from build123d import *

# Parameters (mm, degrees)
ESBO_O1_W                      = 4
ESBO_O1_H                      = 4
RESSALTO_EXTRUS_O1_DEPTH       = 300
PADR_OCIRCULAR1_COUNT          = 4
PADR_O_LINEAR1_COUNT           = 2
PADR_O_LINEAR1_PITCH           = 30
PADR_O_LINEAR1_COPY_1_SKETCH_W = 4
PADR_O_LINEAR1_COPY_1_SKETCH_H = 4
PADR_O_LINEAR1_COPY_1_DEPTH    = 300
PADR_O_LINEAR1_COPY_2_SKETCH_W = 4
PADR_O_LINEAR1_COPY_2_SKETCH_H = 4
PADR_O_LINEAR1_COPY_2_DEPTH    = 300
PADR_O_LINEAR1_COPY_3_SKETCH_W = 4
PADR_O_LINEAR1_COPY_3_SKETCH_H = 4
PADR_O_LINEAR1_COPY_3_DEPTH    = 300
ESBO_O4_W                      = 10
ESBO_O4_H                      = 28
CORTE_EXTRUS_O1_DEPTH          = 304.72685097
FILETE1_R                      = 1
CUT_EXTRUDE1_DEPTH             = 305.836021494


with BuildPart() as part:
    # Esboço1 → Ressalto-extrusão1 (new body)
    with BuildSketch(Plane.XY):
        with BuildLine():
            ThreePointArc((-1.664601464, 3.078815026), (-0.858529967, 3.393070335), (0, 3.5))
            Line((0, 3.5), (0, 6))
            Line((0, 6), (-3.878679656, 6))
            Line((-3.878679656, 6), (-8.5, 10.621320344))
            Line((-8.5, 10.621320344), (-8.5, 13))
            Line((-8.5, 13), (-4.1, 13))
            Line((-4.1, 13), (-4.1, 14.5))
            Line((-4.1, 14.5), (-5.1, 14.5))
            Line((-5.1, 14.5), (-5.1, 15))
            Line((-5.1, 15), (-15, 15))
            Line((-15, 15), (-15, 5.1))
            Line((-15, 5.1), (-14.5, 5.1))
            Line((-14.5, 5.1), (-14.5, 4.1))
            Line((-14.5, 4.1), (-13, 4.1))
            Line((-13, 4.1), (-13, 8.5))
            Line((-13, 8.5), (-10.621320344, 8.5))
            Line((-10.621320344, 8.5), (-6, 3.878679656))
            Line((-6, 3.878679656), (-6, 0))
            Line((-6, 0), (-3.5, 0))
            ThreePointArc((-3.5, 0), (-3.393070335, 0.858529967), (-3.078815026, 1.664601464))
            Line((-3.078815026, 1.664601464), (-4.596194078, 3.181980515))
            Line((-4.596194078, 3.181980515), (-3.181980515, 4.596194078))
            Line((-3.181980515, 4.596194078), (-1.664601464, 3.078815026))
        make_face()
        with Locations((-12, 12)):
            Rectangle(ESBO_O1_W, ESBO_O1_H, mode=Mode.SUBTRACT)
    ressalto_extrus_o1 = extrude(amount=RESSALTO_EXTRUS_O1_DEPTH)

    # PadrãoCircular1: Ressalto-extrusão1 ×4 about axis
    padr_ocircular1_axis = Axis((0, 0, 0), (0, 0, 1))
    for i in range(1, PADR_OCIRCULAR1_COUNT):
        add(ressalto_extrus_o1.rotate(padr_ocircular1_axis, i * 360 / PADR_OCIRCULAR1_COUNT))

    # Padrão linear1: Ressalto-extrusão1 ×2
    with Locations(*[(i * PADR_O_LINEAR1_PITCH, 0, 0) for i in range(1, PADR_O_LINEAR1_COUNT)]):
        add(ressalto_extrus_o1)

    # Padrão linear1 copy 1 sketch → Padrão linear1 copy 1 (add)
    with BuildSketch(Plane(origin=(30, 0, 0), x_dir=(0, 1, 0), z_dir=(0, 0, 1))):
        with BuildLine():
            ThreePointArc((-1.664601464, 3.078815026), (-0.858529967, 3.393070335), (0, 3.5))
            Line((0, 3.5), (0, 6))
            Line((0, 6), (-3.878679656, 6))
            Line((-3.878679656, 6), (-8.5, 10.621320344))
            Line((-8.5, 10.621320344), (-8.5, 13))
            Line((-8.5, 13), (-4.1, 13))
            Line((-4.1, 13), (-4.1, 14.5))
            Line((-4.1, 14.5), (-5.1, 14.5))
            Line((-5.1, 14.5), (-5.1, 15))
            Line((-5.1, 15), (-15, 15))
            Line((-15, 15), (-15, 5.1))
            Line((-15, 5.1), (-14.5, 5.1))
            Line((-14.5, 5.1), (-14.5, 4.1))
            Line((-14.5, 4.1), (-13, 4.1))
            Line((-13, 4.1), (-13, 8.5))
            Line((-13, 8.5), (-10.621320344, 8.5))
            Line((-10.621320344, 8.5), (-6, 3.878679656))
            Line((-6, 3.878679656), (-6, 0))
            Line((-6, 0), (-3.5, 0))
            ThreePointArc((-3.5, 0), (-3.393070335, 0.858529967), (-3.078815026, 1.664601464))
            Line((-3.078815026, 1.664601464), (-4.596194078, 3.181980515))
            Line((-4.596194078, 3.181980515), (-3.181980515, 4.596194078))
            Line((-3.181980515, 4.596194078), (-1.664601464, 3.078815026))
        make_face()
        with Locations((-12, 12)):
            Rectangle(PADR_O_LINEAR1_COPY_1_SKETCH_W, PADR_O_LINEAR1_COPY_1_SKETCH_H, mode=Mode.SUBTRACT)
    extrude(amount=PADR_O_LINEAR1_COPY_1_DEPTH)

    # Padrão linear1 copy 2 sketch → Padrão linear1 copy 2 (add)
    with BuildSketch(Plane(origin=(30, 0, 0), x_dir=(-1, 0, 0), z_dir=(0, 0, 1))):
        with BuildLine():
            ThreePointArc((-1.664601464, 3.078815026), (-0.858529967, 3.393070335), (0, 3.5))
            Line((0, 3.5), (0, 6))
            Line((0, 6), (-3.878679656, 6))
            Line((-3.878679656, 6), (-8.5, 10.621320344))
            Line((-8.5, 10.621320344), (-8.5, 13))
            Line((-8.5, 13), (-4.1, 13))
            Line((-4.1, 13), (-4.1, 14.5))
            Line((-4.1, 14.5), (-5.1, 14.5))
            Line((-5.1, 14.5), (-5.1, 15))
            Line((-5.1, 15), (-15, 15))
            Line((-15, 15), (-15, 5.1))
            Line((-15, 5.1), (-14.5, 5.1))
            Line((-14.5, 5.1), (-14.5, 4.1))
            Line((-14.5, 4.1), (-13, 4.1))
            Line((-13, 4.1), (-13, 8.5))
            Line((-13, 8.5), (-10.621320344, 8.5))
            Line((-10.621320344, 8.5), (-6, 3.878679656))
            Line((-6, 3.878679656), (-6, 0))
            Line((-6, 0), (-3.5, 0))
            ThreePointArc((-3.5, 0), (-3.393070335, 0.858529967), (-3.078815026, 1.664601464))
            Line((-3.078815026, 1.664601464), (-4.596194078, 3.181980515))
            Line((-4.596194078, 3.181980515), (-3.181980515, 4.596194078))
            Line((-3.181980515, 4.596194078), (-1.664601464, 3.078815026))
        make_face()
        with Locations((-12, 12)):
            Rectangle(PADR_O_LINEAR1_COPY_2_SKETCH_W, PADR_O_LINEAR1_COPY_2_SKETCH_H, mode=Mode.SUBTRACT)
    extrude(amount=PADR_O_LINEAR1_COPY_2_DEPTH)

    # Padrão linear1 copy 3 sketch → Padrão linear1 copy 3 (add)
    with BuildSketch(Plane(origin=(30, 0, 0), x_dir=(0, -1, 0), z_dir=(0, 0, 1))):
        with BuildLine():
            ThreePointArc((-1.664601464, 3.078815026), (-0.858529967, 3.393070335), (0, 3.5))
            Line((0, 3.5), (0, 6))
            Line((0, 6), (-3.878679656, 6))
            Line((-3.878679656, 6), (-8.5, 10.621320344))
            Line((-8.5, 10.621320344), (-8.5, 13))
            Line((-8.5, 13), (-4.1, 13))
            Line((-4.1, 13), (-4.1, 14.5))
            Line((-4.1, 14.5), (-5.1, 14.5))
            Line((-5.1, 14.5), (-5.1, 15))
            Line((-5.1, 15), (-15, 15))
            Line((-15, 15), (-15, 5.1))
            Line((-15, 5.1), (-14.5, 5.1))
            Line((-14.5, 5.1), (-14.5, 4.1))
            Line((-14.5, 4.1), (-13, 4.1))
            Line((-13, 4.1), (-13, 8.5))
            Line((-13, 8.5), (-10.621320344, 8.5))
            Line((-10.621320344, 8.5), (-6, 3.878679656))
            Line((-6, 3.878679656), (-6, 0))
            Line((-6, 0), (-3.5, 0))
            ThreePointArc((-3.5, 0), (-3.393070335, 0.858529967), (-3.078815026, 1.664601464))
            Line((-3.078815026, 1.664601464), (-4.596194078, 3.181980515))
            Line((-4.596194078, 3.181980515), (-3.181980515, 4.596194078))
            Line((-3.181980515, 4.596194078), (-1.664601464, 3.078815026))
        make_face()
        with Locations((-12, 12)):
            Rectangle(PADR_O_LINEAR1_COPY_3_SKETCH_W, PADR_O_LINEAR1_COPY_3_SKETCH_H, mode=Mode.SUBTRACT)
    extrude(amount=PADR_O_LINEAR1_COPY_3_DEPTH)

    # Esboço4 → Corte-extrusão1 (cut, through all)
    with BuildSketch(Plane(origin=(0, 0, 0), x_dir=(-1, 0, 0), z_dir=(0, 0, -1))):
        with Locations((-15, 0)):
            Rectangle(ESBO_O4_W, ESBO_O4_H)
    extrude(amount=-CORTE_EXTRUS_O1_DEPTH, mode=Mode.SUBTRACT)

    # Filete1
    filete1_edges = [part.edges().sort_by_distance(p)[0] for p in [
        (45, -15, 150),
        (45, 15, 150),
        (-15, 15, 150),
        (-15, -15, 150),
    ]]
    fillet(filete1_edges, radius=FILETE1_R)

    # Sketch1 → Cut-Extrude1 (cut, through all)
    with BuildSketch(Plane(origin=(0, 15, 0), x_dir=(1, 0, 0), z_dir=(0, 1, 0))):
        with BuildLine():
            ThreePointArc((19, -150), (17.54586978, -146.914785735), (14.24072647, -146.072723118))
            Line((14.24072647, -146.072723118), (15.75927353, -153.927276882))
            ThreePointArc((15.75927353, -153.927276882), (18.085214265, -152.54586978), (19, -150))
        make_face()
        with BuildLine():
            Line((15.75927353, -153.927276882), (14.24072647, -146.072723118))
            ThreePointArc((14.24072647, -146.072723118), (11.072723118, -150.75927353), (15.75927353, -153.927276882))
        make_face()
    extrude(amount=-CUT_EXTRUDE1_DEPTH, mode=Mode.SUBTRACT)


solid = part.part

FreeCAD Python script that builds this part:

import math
import FreeCAD as App
import Part
import Sketcher

V = App.Vector
Q = App.Units.Quantity


def edges_at(feature, points):
    """Names of the edges that pass closest to the given points."""
    edges = feature.Shape.Edges
    near = lambda p: min(range(len(edges)), key=lambda i: edges[i].distToShape(Part.Vertex(*p))[0])
    return sorted({f"Edge{near(p) + 1}" for p in points})


def add_polygon(sketch, points):
    """Adds a closed chain of lines whose ends are joined by coincident constraints."""
    first, n = sketch.GeometryCount, len(points)
    for a, b in zip(points, points[1:] + points[:1]):
        sketch.addGeometry(Part.LineSegment(App.Vector(*a, 0), App.Vector(*b, 0)), False)
    for i in range(n):
        sketch.addConstraint(Sketcher.Constraint("Coincident", first + i, 2, first + (i + 1) % n, 1))

doc = App.newDocument("Part")
body = doc.addObject("PartDesign::Body", "Body")

# Sketch on XY plane
sketch1 = body.newObject("Sketcher::SketchObject", "Sketch")
sketch1.AttachmentSupport = (doc.getObject("XY_Plane"), [""])
sketch1.MapMode = "FlatFace"
sketch1.addGeometry(Part.ArcOfCircle(Part.Circle(V(0, 0, 0), V(0, 0, 1), 3.5), math.radians(90), math.radians(118.39845)), False)  # 0
sketch1.addGeometry(Part.LineSegment(V(0, 3.5, 0), V(0, 6, 0)), False)  # 1
sketch1.addGeometry(Part.LineSegment(V(0, 6, 0), V(-3.87868, 6, 0)), False)  # 2
sketch1.addGeometry(Part.LineSegment(V(-3.87868, 6, 0), V(-8.5, 10.62132, 0)), False)  # 3
sketch1.addGeometry(Part.LineSegment(V(-8.5, 10.62132, 0), V(-8.5, 13, 0)), False)  # 4
sketch1.addGeometry(Part.LineSegment(V(-8.5, 13, 0), V(-4.1, 13, 0)), False)  # 5
sketch1.addGeometry(Part.LineSegment(V(-4.1, 13, 0), V(-4.1, 14.5, 0)), False)  # 6
sketch1.addGeometry(Part.LineSegment(V(-4.1, 14.5, 0), V(-5.1, 14.5, 0)), False)  # 7
sketch1.addGeometry(Part.LineSegment(V(-5.1, 14.5, 0), V(-5.1, 15, 0)), False)  # 8
sketch1.addGeometry(Part.LineSegment(V(-5.1, 15, 0), V(-15, 15, 0)), False)  # 9
sketch1.addGeometry(Part.LineSegment(V(-15, 15, 0), V(-15, 5.1, 0)), False)  # 10
sketch1.addGeometry(Part.LineSegment(V(-15, 5.1, 0), V(-14.5, 5.1, 0)), False)  # 11
sketch1.addGeometry(Part.LineSegment(V(-14.5, 5.1, 0), V(-14.5, 4.1, 0)), False)  # 12
sketch1.addGeometry(Part.LineSegment(V(-14.5, 4.1, 0), V(-13, 4.1, 0)), False)  # 13
sketch1.addGeometry(Part.LineSegment(V(-13, 4.1, 0), V(-13, 8.5, 0)), False)  # 14
sketch1.addGeometry(Part.LineSegment(V(-13, 8.5, 0), V(-10.62132, 8.5, 0)), False)  # 15
sketch1.addGeometry(Part.LineSegment(V(-10.62132, 8.5, 0), V(-6, 3.87868, 0)), False)  # 16
sketch1.addGeometry(Part.LineSegment(V(-6, 3.87868, 0), V(-6, 0, 0)), False)  # 17
sketch1.addGeometry(Part.LineSegment(V(-6, 0, 0), V(-3.5, 0, 0)), False)  # 18
sketch1.addGeometry(Part.ArcOfCircle(Part.Circle(V(0, 0, 0), V(0, 0, 1), 3.5), math.radians(151.60155), math.radians(180)), False)  # 19
sketch1.addGeometry(Part.LineSegment(V(-3.078815, 1.664601, 0), V(-4.596194, 3.181981, 0)), False)  # 20
sketch1.addGeometry(Part.LineSegment(V(-4.596194, 3.181981, 0), V(-3.181981, 4.596194, 0)), False)  # 21
sketch1.addGeometry(Part.LineSegment(V(-3.181981, 4.596194, 0), V(-1.664601, 3.078815, 0)), False)  # 22
add_polygon(sketch1, [(-10, 10), (-14, 10), (-14, 14), (-10, 14)])  # lines 23-26
sketch1.addConstraint(Sketcher.Constraint("Coincident", 0, 1, 1, 1))
sketch1.addConstraint(Sketcher.Constraint("Coincident", 1, 2, 2, 1))
sketch1.addConstraint(Sketcher.Constraint("Coincident", 2, 2, 3, 1))
sketch1.addConstraint(Sketcher.Constraint("Coincident", 3, 2, 4, 1))
sketch1.addConstraint(Sketcher.Constraint("Coincident", 4, 2, 5, 1))
sketch1.addConstraint(Sketcher.Constraint("Coincident", 5, 2, 6, 1))
sketch1.addConstraint(Sketcher.Constraint("Coincident", 6, 2, 7, 1))
sketch1.addConstraint(Sketcher.Constraint("Coincident", 7, 2, 8, 1))
sketch1.addConstraint(Sketcher.Constraint("Coincident", 8, 2, 9, 1))
sketch1.addConstraint(Sketcher.Constraint("Coincident", 9, 2, 10, 1))
sketch1.addConstraint(Sketcher.Constraint("Coincident", 10, 2, 11, 1))
sketch1.addConstraint(Sketcher.Constraint("Coincident", 11, 2, 12, 1))
sketch1.addConstraint(Sketcher.Constraint("Coincident", 12, 2, 13, 1))
sketch1.addConstraint(Sketcher.Constraint("Coincident", 13, 2, 14, 1))
sketch1.addConstraint(Sketcher.Constraint("Coincident", 14, 2, 15, 1))
sketch1.addConstraint(Sketcher.Constraint("Coincident", 15, 2, 16, 1))
sketch1.addConstraint(Sketcher.Constraint("Coincident", 16, 2, 17, 1))
sketch1.addConstraint(Sketcher.Constraint("Coincident", 17, 2, 18, 1))
sketch1.addConstraint(Sketcher.Constraint("Coincident", 18, 2, 19, 2))
sketch1.addConstraint(Sketcher.Constraint("Coincident", 19, 1, 20, 1))
sketch1.addConstraint(Sketcher.Constraint("Coincident", 20, 2, 21, 1))
sketch1.addConstraint(Sketcher.Constraint("Coincident", 21, 2, 22, 1))
sketch1.addConstraint(Sketcher.Constraint("Coincident", 22, 2, 0, 2))
sketch1.addConstraint(Sketcher.Constraint("Vertical", 1))
sketch1.addConstraint(Sketcher.Constraint("Horizontal", 2))
sketch1.addConstraint(Sketcher.Constraint("Vertical", 4))
sketch1.addConstraint(Sketcher.Constraint("Horizontal", 5))
sketch1.addConstraint(Sketcher.Constraint("Vertical", 6))
sketch1.addConstraint(Sketcher.Constraint("Horizontal", 7))
sketch1.addConstraint(Sketcher.Constraint("Vertical", 8))
sketch1.addConstraint(Sketcher.Constraint("Horizontal", 9))
sketch1.addConstraint(Sketcher.Constraint("Vertical", 10))
sketch1.addConstraint(Sketcher.Constraint("Horizontal", 11))
sketch1.addConstraint(Sketcher.Constraint("Vertical", 12))
sketch1.addConstraint(Sketcher.Constraint("Horizontal", 13))
sketch1.addConstraint(Sketcher.Constraint("Vertical", 14))
sketch1.addConstraint(Sketcher.Constraint("Horizontal", 15))
sketch1.addConstraint(Sketcher.Constraint("Vertical", 17))
sketch1.addConstraint(Sketcher.Constraint("Horizontal", 18))
sketch1.addConstraint(Sketcher.Constraint("Horizontal", 23))
sketch1.addConstraint(Sketcher.Constraint("Vertical", 24))
sketch1.addConstraint(Sketcher.Constraint("Horizontal", 25))
sketch1.addConstraint(Sketcher.Constraint("Vertical", 26))
sketch1.addConstraint(Sketcher.Constraint("Coincident", 0, 3, -1, 1))
sketch1.addConstraint(Sketcher.Constraint("Coincident", 19, 3, -1, 1))
sketch1.addConstraint(Sketcher.Constraint("Equal", 0, 19))
sketch1.addConstraint(Sketcher.Constraint("PointOnObject", 0, 1, -2))
sketch1.addConstraint(Sketcher.Constraint("PointOnObject", 17, 2, -1))
sketch1.addConstraint(Sketcher.Constraint("Parallel", 3, 16))
sketch1.addConstraint(Sketcher.Constraint("Parallel", 16, 20))
sketch1.addConstraint(Sketcher.Constraint("Perpendicular", 20, 21))
sketch1.addConstraint(Sketcher.Constraint("Perpendicular", 21, 22))
sketch1.addConstraint(Sketcher.Constraint("Equal", 18, 1))
sketch1.addConstraint(Sketcher.Constraint("Equal", 15, 4))
sketch1.addConstraint(Sketcher.Constraint("Equal", 13, 6))
sketch1.addConstraint(Sketcher.Constraint("Equal", 11, 8))
sketch1.addConstraint(Sketcher.Constraint("Equal", 9, 10))
sketch1.addConstraint(Sketcher.Constraint("Equal", 7, 12))
sketch1.addConstraint(Sketcher.Constraint("Equal", 5, 14))
sketch1.addConstraint(Sketcher.Constraint("Equal", 2, 17))
sketch1.addConstraint(Sketcher.Constraint("Equal", 25, 24))
sketch1.addConstraint(Sketcher.Constraint("Equal", 20, 22))
sketch1.addConstraint(Sketcher.Constraint("Radius", 0, Q("3.5 mm")))
sketch1.addConstraint(Sketcher.Constraint("DistanceX", 7, 2, 7, 1, Q("1 mm")))
sketch1.addConstraint(Sketcher.Constraint("DistanceX", 23, 2, 23, 1, Q("4 mm")))
sketch1.addConstraint(Sketcher.Constraint("Angle", 3, Q("135 deg")))
sketch1.addConstraint(Sketcher.Constraint("Distance", 21, Q("2 mm")))
sketch1.addConstraint(Sketcher.Constraint("DistanceX", 5, 1, 5, 2, Q("4.4 mm")))
sketch1.addConstraint(Sketcher.Constraint("DistanceX", 9, 2, 9, 1, Q("9.9 mm")))
sketch1.addConstraint(Sketcher.Constraint("DistanceX", 11, 1, 11, 2, Q("0.5 mm")))
sketch1.addConstraint(Sketcher.Constraint("DistanceX", 13, 1, 13, 2, Q("1.5 mm")))
sketch1.addConstraint(Sketcher.Constraint("DistanceX", 18, 1, 18, 2, Q("2.5 mm")))
sketch1.addConstraint(Sketcher.Constraint("DistanceY", -1, 1, 4, 2, Q("13 mm")))
sketch1.addConstraint(Sketcher.Constraint("DistanceX", 23, 2, -1, 1, Q("14 mm")))
sketch1.addConstraint(Sketcher.Constraint("DistanceY", -1, 1, 23, 2, Q("10 mm")))
sketch1.addConstraint(Sketcher.Constraint("Distance", 20, Q("2.145898 mm")))
sketch1.addConstraint(Sketcher.Constraint("DistanceX", 2, 2, 2, 1, Q("3.87868 mm")))
pad1 = body.newObject("PartDesign::Pad", "Pad")
pad1.Profile = sketch1
pad1.Length = 300
doc.recompute()

polarpattern = body.newObject("PartDesign::PolarPattern", "PolarPattern")
polarpattern.Originals = [pad1]
polarpattern.Axis = (doc.getObject("Z_Axis"), [""])
polarpattern.Angle = 360
polarpattern.Occurrences = 4
body.Tip = polarpattern
doc.recompute()

linearpattern = body.newObject("PartDesign::LinearPattern", "LinearPattern")
linearpattern.Originals = [pad1]
linearpattern.Direction = (doc.getObject("X_Axis"), [""])
linearpattern.Mode = "offset"
linearpattern.Offset = 30
linearpattern.Occurrences = 2
body.Tip = linearpattern

# Sketch on XY plane
sketch2 = body.newObject("Sketcher::SketchObject", "Sketch001")
sketch2.AttachmentSupport = (doc.getObject("XY_Plane"), [""])
sketch2.MapMode = "FlatFace"
sketch2.addGeometry(Part.ArcOfCircle(Part.Circle(V(30, 0, 0), V(0, 0, 1), 3.5), math.radians(180), math.radians(208.39845)), False)  # 0
sketch2.addGeometry(Part.LineSegment(V(26.5, 0, 0), V(24, 0, 0)), False)  # 1
sketch2.addGeometry(Part.LineSegment(V(24, 0, 0), V(24, -3.87868, 0)), False)  # 2
sketch2.addGeometry(Part.LineSegment(V(24, -3.87868, 0), V(19.37868, -8.5, 0)), False)  # 3
sketch2.addGeometry(Part.LineSegment(V(19.37868, -8.5, 0), V(17, -8.5, 0)), False)  # 4
sketch2.addGeometry(Part.LineSegment(V(17, -8.5, 0), V(17, -4.1, 0)), False)  # 5
sketch2.addGeometry(Part.LineSegment(V(17, -4.1, 0), V(15.5, -4.1, 0)), False)  # 6
sketch2.addGeometry(Part.LineSegment(V(15.5, -4.1, 0), V(15.5, -5.1, 0)), False)  # 7
sketch2.addGeometry(Part.LineSegment(V(15.5, -5.1, 0), V(15, -5.1, 0)), False)  # 8
sketch2.addGeometry(Part.LineSegment(V(15, -5.1, 0), V(15, -15, 0)), False)  # 9
sketch2.addGeometry(Part.LineSegment(V(15, -15, 0), V(24.9, -15, 0)), False)  # 10
sketch2.addGeometry(Part.LineSegment(V(24.9, -15, 0), V(24.9, -14.5, 0)), False)  # 11
sketch2.addGeometry(Part.LineSegment(V(24.9, -14.5, 0), V(25.9, -14.5, 0)), False)  # 12
sketch2.addGeometry(Part.LineSegment(V(25.9, -14.5, 0), V(25.9, -13, 0)), False)  # 13
sketch2.addGeometry(Part.LineSegment(V(25.9, -13, 0), V(21.5, -13, 0)), False)  # 14
sketch2.addGeometry(Part.LineSegment(V(21.5, -13, 0), V(21.5, -10.62132, 0)), False)  # 15
sketch2.addGeometry(Part.LineSegment(V(21.5, -10.62132, 0), V(26.12132, -6, 0)), False)  # 16
sketch2.addGeometry(Part.LineSegment(V(26.12132, -6, 0), V(30, -6, 0)), False)  # 17
sketch2.addGeometry(Part.LineSegment(V(30, -6, 0), V(30, -3.5, 0)), False)  # 18
sketch2.addGeometry(Part.ArcOfCircle(Part.Circle(V(30, 0, 0), V(0, 0, 1), 3.5), math.radians(-118.39845), math.radians(-90)), False)  # 19
sketch2.addGeometry(Part.LineSegment(V(28.335399, -3.078815, 0), V(26.818019, -4.596194, 0)), False)  # 20
sketch2.addGeometry(Part.LineSegment(V(26.818019, -4.596194, 0), V(25.403806, -3.181981, 0)), False)  # 21
sketch2.addGeometry(Part.LineSegment(V(25.403806, -3.181981, 0), V(26.921185, -1.664601, 0)), False)  # 22
add_polygon(sketch2, [(20, -10), (20, -14), (16, -14), (16, -10)])  # lines 23-26
sketch2.addConstraint(Sketcher.Constraint("Coincident", 0, 1, 1, 1))
sketch2.addConstraint(Sketcher.Constraint("Coincident", 1, 2, 2, 1))
sketch2.addConstraint(Sketcher.Constraint("Coincident", 2, 2, 3, 1))
sketch2.addConstraint(Sketcher.Constraint("Coincident", 3, 2, 4, 1))
sketch2.addConstraint(Sketcher.Constraint("Coincident", 4, 2, 5, 1))
sketch2.addConstraint(Sketcher.Constraint("Coincident", 5, 2, 6, 1))
sketch2.addConstraint(Sketcher.Constraint("Coincident", 6, 2, 7, 1))
sketch2.addConstraint(Sketcher.Constraint("Coincident", 7, 2, 8, 1))
sketch2.addConstraint(Sketcher.Constraint("Coincident", 8, 2, 9, 1))
sketch2.addConstraint(Sketcher.Constraint("Coincident", 9, 2, 10, 1))
sketch2.addConstraint(Sketcher.Constraint("Coincident", 10, 2, 11, 1))
sketch2.addConstraint(Sketcher.Constraint("Coincident", 11, 2, 12, 1))
sketch2.addConstraint(Sketcher.Constraint("Coincident", 12, 2, 13, 1))
sketch2.addConstraint(Sketcher.Constraint("Coincident", 13, 2, 14, 1))
sketch2.addConstraint(Sketcher.Constraint("Coincident", 14, 2, 15, 1))
sketch2.addConstraint(Sketcher.Constraint("Coincident", 15, 2, 16, 1))
sketch2.addConstraint(Sketcher.Constraint("Coincident", 16, 2, 17, 1))
sketch2.addConstraint(Sketcher.Constraint("Coincident", 17, 2, 18, 1))
sketch2.addConstraint(Sketcher.Constraint("Coincident", 18, 2, 19, 2))
sketch2.addConstraint(Sketcher.Constraint("Coincident", 19, 1, 20, 1))
sketch2.addConstraint(Sketcher.Constraint("Coincident", 20, 2, 21, 1))
sketch2.addConstraint(Sketcher.Constraint("Coincident", 21, 2, 22, 1))
sketch2.addConstraint(Sketcher.Constraint("Coincident", 22, 2, 0, 2))
sketch2.addConstraint(Sketcher.Constraint("Horizontal", 1))
sketch2.addConstraint(Sketcher.Constraint("Vertical", 2))
sketch2.addConstraint(Sketcher.Constraint("Horizontal", 4))
sketch2.addConstraint(Sketcher.Constraint("Vertical", 5))
sketch2.addConstraint(Sketcher.Constraint("Horizontal", 6))
sketch2.addConstraint(Sketcher.Constraint("Vertical", 7))
sketch2.addConstraint(Sketcher.Constraint("Horizontal", 8))
sketch2.addConstraint(Sketcher.Constraint("Vertical", 9))
sketch2.addConstraint(Sketcher.Constraint("Horizontal", 10))
sketch2.addConstraint(Sketcher.Constraint("Vertical", 11))
sketch2.addConstraint(Sketcher.Constraint("Horizontal", 12))
sketch2.addConstraint(Sketcher.Constraint("Vertical", 13))
sketch2.addConstraint(Sketcher.Constraint("Horizontal", 14))
sketch2.addConstraint(Sketcher.Constraint("Vertical", 15))
sketch2.addConstraint(Sketcher.Constraint("Horizontal", 17))
sketch2.addConstraint(Sketcher.Constraint("Vertical", 18))
sketch2.addConstraint(Sketcher.Constraint("Vertical", 23))
sketch2.addConstraint(Sketcher.Constraint("Horizontal", 24))
sketch2.addConstraint(Sketcher.Constraint("Vertical", 25))
sketch2.addConstraint(Sketcher.Constraint("Horizontal", 26))
sketch2.addConstraint(Sketcher.Constraint("Coincident", 19, 3, 0, 3))
sketch2.addConstraint(Sketcher.Constraint("Equal", 0, 19))
sketch2.addConstraint(Sketcher.Constraint("PointOnObject", 0, 3, -1))
sketch2.addConstraint(Sketcher.Constraint("PointOnObject", 0, 1, -1))
sketch2.addConstraint(Sketcher.Constraint("Parallel", 3, 16))
sketch2.addConstraint(Sketcher.Constraint("Parallel", 16, 20))
sketch2.addConstraint(Sketcher.Constraint("Perpendicular", 20, 21))
sketch2.addConstraint(Sketcher.Constraint("Perpendicular", 21, 22))
sketch2.addConstraint(Sketcher.Constraint("Vertical", 19, 3, 17, 2))
sketch2.addConstraint(Sketcher.Constraint("Equal", 17, 2))
sketch2.addConstraint(Sketcher.Constraint("Equal", 14, 5))
sketch2.addConstraint(Sketcher.Constraint("Equal", 12, 7))
sketch2.addConstraint(Sketcher.Constraint("Equal", 10, 9))
sketch2.addConstraint(Sketcher.Constraint("Equal", 8, 11))
sketch2.addConstraint(Sketcher.Constraint("Equal", 6, 13))
sketch2.addConstraint(Sketcher.Constraint("Equal", 4, 15))
sketch2.addConstraint(Sketcher.Constraint("Equal", 1, 18))
sketch2.addConstraint(Sketcher.Constraint("Equal", 26, 23))
sketch2.addConstraint(Sketcher.Constraint("Equal", 20, 22))
sketch2.addConstraint(Sketcher.Constraint("Radius", 0, Q("3.5 mm")))
sketch2.addConstraint(Sketcher.Constraint("DistanceX", 12, 1, 12, 2, Q("1 mm")))
sketch2.addConstraint(Sketcher.Constraint("DistanceX", 24, 2, 24, 1, Q("4 mm")))
sketch2.addConstraint(Sketcher.Constraint("Angle", 3, Q("-135 deg")))
sketch2.addConstraint(Sketcher.Constraint("Distance", 21, Q("2 mm")))
sketch2.addConstraint(Sketcher.Constraint("DistanceX", 1, 2, 1, 1, Q("2.5 mm")))
sketch2.addConstraint(Sketcher.Constraint("DistanceX", 6, 2, 6, 1, Q("1.5 mm")))
sketch2.addConstraint(Sketcher.Constraint("DistanceX", 8, 2, 8, 1, Q("0.5 mm")))
sketch2.addConstraint(Sketcher.Constraint("DistanceX", 10, 1, 10, 2, Q("9.9 mm")))
sketch2.addConstraint(Sketcher.Constraint("DistanceX", 14, 2, 14, 1, Q("4.4 mm")))
sketch2.addConstraint(Sketcher.Constraint("DistanceX", -1, 1, 0, 3, Q("30 mm")))
sketch2.addConstraint(Sketcher.Constraint("DistanceX", -1, 1, 4, 2, Q("17 mm")))
sketch2.addConstraint(Sketcher.Constraint("DistanceX", -1, 1, 23, 2, Q("20 mm")))
sketch2.addConstraint(Sketcher.Constraint("DistanceY", 23, 2, -1, 1, Q("14 mm")))
sketch2.addConstraint(Sketcher.Constraint("Distance", 20, Q("2.145898 mm")))
sketch2.addConstraint(Sketcher.Constraint("DistanceX", 4, 2, 4, 1, Q("2.37868 mm")))
pad2 = body.newObject("PartDesign::Pad", "Pad001")
pad2.Profile = sketch2
pad2.Length = 300

# Sketch on XY plane
sketch3 = body.newObject("Sketcher::SketchObject", "Sketch002")
sketch3.AttachmentSupport = (doc.getObject("XY_Plane"), [""])
sketch3.MapMode = "FlatFace"
sketch3.addGeometry(Part.ArcOfCircle(Part.Circle(V(30, 0, 0), V(0, 0, 1), 3.5), math.radians(-90), math.radians(-61.60155)), False)  # 0
sketch3.addGeometry(Part.LineSegment(V(30, -3.5, 0), V(30, -6, 0)), False)  # 1
sketch3.addGeometry(Part.LineSegment(V(30, -6, 0), V(33.87868, -6, 0)), False)  # 2
sketch3.addGeometry(Part.LineSegment(V(33.87868, -6, 0), V(38.5, -10.62132, 0)), False)  # 3
sketch3.addGeometry(Part.LineSegment(V(38.5, -10.62132, 0), V(38.5, -13, 0)), False)  # 4
sketch3.addGeometry(Part.LineSegment(V(38.5, -13, 0), V(34.1, -13, 0)), False)  # 5
sketch3.addGeometry(Part.LineSegment(V(34.1, -13, 0), V(34.1, -14.5, 0)), False)  # 6
sketch3.addGeometry(Part.LineSegment(V(34.1, -14.5, 0), V(35.1, -14.5, 0)), False)  # 7
sketch3.addGeometry(Part.LineSegment(V(35.1, -14.5, 0), V(35.1, -15, 0)), False)  # 8
sketch3.addGeometry(Part.LineSegment(V(35.1, -15, 0), V(45, -15, 0)), False)  # 9
sketch3.addGeometry(Part.LineSegment(V(45, -15, 0), V(45, -5.1, 0)), False)  # 10
sketch3.addGeometry(Part.LineSegment(V(45, -5.1, 0), V(44.5, -5.1, 0)), False)  # 11
sketch3.addGeometry(Part.LineSegment(V(44.5, -5.1, 0), V(44.5, -4.1, 0)), False)  # 12
sketch3.addGeometry(Part.LineSegment(V(44.5, -4.1, 0), V(43, -4.1, 0)), False)  # 13
sketch3.addGeometry(Part.LineSegment(V(43, -4.1, 0), V(43, -8.5, 0)), False)  # 14
sketch3.addGeometry(Part.LineSegment(V(43, -8.5, 0), V(40.62132, -8.5, 0)), False)  # 15
sketch3.addGeometry(Part.LineSegment(V(40.62132, -8.5, 0), V(36, -3.87868, 0)), False)  # 16
sketch3.addGeometry(Part.LineSegment(V(36, -3.87868, 0), V(36, 0, 0)), False)  # 17
sketch3.addGeometry(Part.LineSegment(V(36, 0, 0), V(33.5, 0, 0)), False)  # 18
sketch3.addGeometry(Part.ArcOfCircle(Part.Circle(V(30, 0, 0), V(0, 0, 1), 3.5), math.radians(-28.39845), math.radians(0)), False)  # 19
sketch3.addGeometry(Part.LineSegment(V(33.078815, -1.664601, 0), V(34.596194, -3.181981, 0)), False)  # 20
sketch3.addGeometry(Part.LineSegment(V(34.596194, -3.181981, 0), V(33.181981, -4.596194, 0)), False)  # 21
sketch3.addGeometry(Part.LineSegment(V(33.181981, -4.596194, 0), V(31.664601, -3.078815, 0)), False)  # 22
add_polygon(sketch3, [(40, -10), (44, -10), (44, -14), (40, -14)])  # lines 23-26
sketch3.addConstraint(Sketcher.Constraint("Coincident", 0, 1, 1, 1))
sketch3.addConstraint(Sketcher.Constraint("Coincident", 1, 2, 2, 1))
sketch3.addConstraint(Sketcher.Constraint("Coincident", 2, 2, 3, 1))
sketch3.addConstraint(Sketcher.Constraint("Coincident", 3, 2, 4, 1))
sketch3.addConstraint(Sketcher.Constraint("Coincident", 4, 2, 5, 1))
sketch3.addConstraint(Sketcher.Constraint("Coincident", 5, 2, 6, 1))
sketch3.addConstraint(Sketcher.Constraint("Coincident", 6, 2, 7, 1))
sketch3.addConstraint(Sketcher.Constraint("Coincident", 7, 2, 8, 1))
sketch3.addConstraint(Sketcher.Constraint("Coincident", 8, 2, 9, 1))
sketch3.addConstraint(Sketcher.Constraint("Coincident", 9, 2, 10, 1))
sketch3.addConstraint(Sketcher.Constraint("Coincident", 10, 2, 11, 1))
sketch3.addConstraint(Sketcher.Constraint("Coincident", 11, 2, 12, 1))
sketch3.addConstraint(Sketcher.Constraint("Coincident", 12, 2, 13, 1))
sketch3.addConstraint(Sketcher.Constraint("Coincident", 13, 2, 14, 1))
sketch3.addConstraint(Sketcher.Constraint("Coincident", 14, 2, 15, 1))
sketch3.addConstraint(Sketcher.Constraint("Coincident", 15, 2, 16, 1))
sketch3.addConstraint(Sketcher.Constraint("Coincident", 16, 2, 17, 1))
sketch3.addConstraint(Sketcher.Constraint("Coincident", 17, 2, 18, 1))
sketch3.addConstraint(Sketcher.Constraint("Coincident", 18, 2, 19, 2))
sketch3.addConstraint(Sketcher.Constraint("Coincident", 19, 1, 20, 1))
sketch3.addConstraint(Sketcher.Constraint("Coincident", 20, 2, 21, 1))
sketch3.addConstraint(Sketcher.Constraint("Coincident", 21, 2, 22, 1))
sketch3.addConstraint(Sketcher.Constraint("Coincident", 22, 2, 0, 2))
sketch3.addConstraint(Sketcher.Constraint("Vertical", 1))
sketch3.addConstraint(Sketcher.Constraint("Horizontal", 2))
sketch3.addConstraint(Sketcher.Constraint("Vertical", 4))
sketch3.addConstraint(Sketcher.Constraint("Horizontal", 5))
sketch3.addConstraint(Sketcher.Constraint("Vertical", 6))
sketch3.addConstraint(Sketcher.Constraint("Horizontal", 7))
sketch3.addConstraint(Sketcher.Constraint("Vertical", 8))
sketch3.addConstraint(Sketcher.Constraint("Horizontal", 9))
sketch3.addConstraint(Sketcher.Constraint("Vertical", 10))
sketch3.addConstraint(Sketcher.Constraint("Horizontal", 11))
sketch3.addConstraint(Sketcher.Constraint("Vertical", 12))
sketch3.addConstraint(Sketcher.Constraint("Horizontal", 13))
sketch3.addConstraint(Sketcher.Constraint("Vertical", 14))
sketch3.addConstraint(Sketcher.Constraint("Horizontal", 15))
sketch3.addConstraint(Sketcher.Constraint("Vertical", 17))
sketch3.addConstraint(Sketcher.Constraint("Horizontal", 18))
sketch3.addConstraint(Sketcher.Constraint("Horizontal", 23))
sketch3.addConstraint(Sketcher.Constraint("Vertical", 24))
sketch3.addConstraint(Sketcher.Constraint("Horizontal", 25))
sketch3.addConstraint(Sketcher.Constraint("Vertical", 26))
sketch3.addConstraint(Sketcher.Constraint("Coincident", 19, 3, 0, 3))
sketch3.addConstraint(Sketcher.Constraint("Equal", 0, 19))
sketch3.addConstraint(Sketcher.Constraint("PointOnObject", 0, 3, -1))
sketch3.addConstraint(Sketcher.Constraint("PointOnObject", 17, 2, -1))
sketch3.addConstraint(Sketcher.Constraint("Parallel", 3, 16))
sketch3.addConstraint(Sketcher.Constraint("Parallel", 16, 20))
sketch3.addConstraint(Sketcher.Constraint("Perpendicular", 20, 21))
sketch3.addConstraint(Sketcher.Constraint("Perpendicular", 21, 22))
sketch3.addConstraint(Sketcher.Constraint("Vertical", 19, 3, 0, 1))
sketch3.addConstraint(Sketcher.Constraint("Equal", 18, 1))
sketch3.addConstraint(Sketcher.Constraint("Equal", 15, 4))
sketch3.addConstraint(Sketcher.Constraint("Equal", 13, 6))
sketch3.addConstraint(Sketcher.Constraint("Equal", 11, 8))
sketch3.addConstraint(Sketcher.Constraint("Equal", 9, 10))
sketch3.addConstraint(Sketcher.Constraint("Equal", 7, 12))
sketch3.addConstraint(Sketcher.Constraint("Equal", 5, 14))
sketch3.addConstraint(Sketcher.Constraint("Equal", 2, 17))
sketch3.addConstraint(Sketcher.Constraint("Equal", 25, 24))
sketch3.addConstraint(Sketcher.Constraint("Equal", 20, 22))
sketch3.addConstraint(Sketcher.Constraint("Radius", 0, Q("3.5 mm")))
sketch3.addConstraint(Sketcher.Constraint("DistanceX", 7, 1, 7, 2, Q("1 mm")))
sketch3.addConstraint(Sketcher.Constraint("DistanceX", 23, 1, 23, 2, Q("4 mm")))
sketch3.addConstraint(Sketcher.Constraint("Angle", 3, Q("-45 deg")))
sketch3.addConstraint(Sketcher.Constraint("Distance", 21, Q("2 mm")))
sketch3.addConstraint(Sketcher.Constraint("DistanceX", 5, 2, 5, 1, Q("4.4 mm")))
sketch3.addConstraint(Sketcher.Constraint("DistanceX", 9, 1, 9, 2, Q("9.9 mm")))
sketch3.addConstraint(Sketcher.Constraint("DistanceX", 11, 2, 11, 1, Q("0.5 mm")))
sketch3.addConstraint(Sketcher.Constraint("DistanceX", 13, 2, 13, 1, Q("1.5 mm")))
sketch3.addConstraint(Sketcher.Constraint("DistanceX", 18, 2, 18, 1, Q("2.5 mm")))
sketch3.addConstraint(Sketcher.Constraint("DistanceX", -1, 1, 0, 3, Q("30 mm")))
sketch3.addConstraint(Sketcher.Constraint("DistanceY", 4, 2, -1, 1, Q("13 mm")))
sketch3.addConstraint(Sketcher.Constraint("DistanceX", -1, 1, 23, 2, Q("44 mm")))
sketch3.addConstraint(Sketcher.Constraint("DistanceY", 23, 2, -1, 1, Q("10 mm")))
sketch3.addConstraint(Sketcher.Constraint("Distance", 20, Q("2.145898 mm")))
sketch3.addConstraint(Sketcher.Constraint("DistanceX", 2, 1, 2, 2, Q("3.87868 mm")))
pad3 = body.newObject("PartDesign::Pad", "Pad002")
pad3.Profile = sketch3
pad3.Length = 300

# Sketch on XY plane
sketch4 = body.newObject("Sketcher::SketchObject", "Sketch003")
sketch4.AttachmentSupport = (doc.getObject("XY_Plane"), [""])
sketch4.MapMode = "FlatFace"
sketch4.addGeometry(Part.ArcOfCircle(Part.Circle(V(30, 0, 0), V(0, 0, 1), 3.5), math.radians(0), math.radians(28.39845)), False)  # 0
sketch4.addGeometry(Part.LineSegment(V(33.5, 0, 0), V(36, 0, 0)), False)  # 1
sketch4.addGeometry(Part.LineSegment(V(36, 0, 0), V(36, 3.87868, 0)), False)  # 2
sketch4.addGeometry(Part.LineSegment(V(36, 3.87868, 0), V(40.62132, 8.5, 0)), False)  # 3
sketch4.addGeometry(Part.LineSegment(V(40.62132, 8.5, 0), V(43, 8.5, 0)), False)  # 4
sketch4.addGeometry(Part.LineSegment(V(43, 8.5, 0), V(43, 4.1, 0)), False)  # 5
sketch4.addGeometry(Part.LineSegment(V(43, 4.1, 0), V(44.5, 4.1, 0)), False)  # 6
sketch4.addGeometry(Part.LineSegment(V(44.5, 4.1, 0), V(44.5, 5.1, 0)), False)  # 7
sketch4.addGeometry(Part.LineSegment(V(44.5, 5.1, 0), V(45, 5.1, 0)), False)  # 8
sketch4.addGeometry(Part.LineSegment(V(45, 5.1, 0), V(45, 15, 0)), False)  # 9
sketch4.addGeometry(Part.LineSegment(V(45, 15, 0), V(35.1, 15, 0)), False)  # 10
sketch4.addGeometry(Part.LineSegment(V(35.1, 15, 0), V(35.1, 14.5, 0)), False)  # 11
sketch4.addGeometry(Part.LineSegment(V(35.1, 14.5, 0), V(34.1, 14.5, 0)), False)  # 12
sketch4.addGeometry(Part.LineSegment(V(34.1, 14.5, 0), V(34.1, 13, 0)), False)  # 13
sketch4.addGeometry(Part.LineSegment(V(34.1, 13, 0), V(38.5, 13, 0)), False)  # 14
sketch4.addGeometry(Part.LineSegment(V(38.5, 13, 0), V(38.5, 10.62132, 0)), False)  # 15
sketch4.addGeometry(Part.LineSegment(V(38.5, 10.62132, 0), V(33.87868, 6, 0)), False)  # 16
sketch4.addGeometry(Part.LineSegment(V(33.87868, 6, 0), V(30, 6, 0)), False)  # 17
sketch4.addGeometry(Part.LineSegment(V(30, 6, 0), V(30, 3.5, 0)), False)  # 18
sketch4.addGeometry(Part.ArcOfCircle(Part.Circle(V(30, 0, 0), V(0, 0, 1), 3.5), math.radians(61.60155), math.radians(90)), False)  # 19
sketch4.addGeometry(Part.LineSegment(V(31.664601, 3.078815, 0), V(33.181981, 4.596194, 0)), False)  # 20
sketch4.addGeometry(Part.LineSegment(V(33.181981, 4.596194, 0), V(34.596194, 3.181981, 0)), False)  # 21
sketch4.addGeometry(Part.LineSegment(V(34.596194, 3.181981, 0), V(33.078815, 1.664601, 0)), False)  # 22
add_polygon(sketch4, [(40, 10), (40, 14), (44, 14), (44, 10)])  # lines 23-26
sketch4.addConstraint(Sketcher.Constraint("Coincident", 0, 1, 1, 1))
sketch4.addConstraint(Sketcher.Constraint("Coincident", 1, 2, 2, 1))
sketch4.addConstraint(Sketcher.Constraint("Coincident", 2, 2, 3, 1))
sketch4.addConstraint(Sketcher.Constraint("Coincident", 3, 2, 4, 1))
sketch4.addConstraint(Sketcher.Constraint("Coincident", 4, 2, 5, 1))
sketch4.addConstraint(Sketcher.Constraint("Coincident", 5, 2, 6, 1))
sketch4.addConstraint(Sketcher.Constraint("Coincident", 6, 2, 7, 1))
sketch4.addConstraint(Sketcher.Constraint("Coincident", 7, 2, 8, 1))
sketch4.addConstraint(Sketcher.Constraint("Coincident", 8, 2, 9, 1))
sketch4.addConstraint(Sketcher.Constraint("Coincident", 9, 2, 10, 1))
sketch4.addConstraint(Sketcher.Constraint("Coincident", 10, 2, 11, 1))
sketch4.addConstraint(Sketcher.Constraint("Coincident", 11, 2, 12, 1))
sketch4.addConstraint(Sketcher.Constraint("Coincident", 12, 2, 13, 1))
sketch4.addConstraint(Sketcher.Constraint("Coincident", 13, 2, 14, 1))
sketch4.addConstraint(Sketcher.Constraint("Coincident", 14, 2, 15, 1))
sketch4.addConstraint(Sketcher.Constraint("Coincident", 15, 2, 16, 1))
sketch4.addConstraint(Sketcher.Constraint("Coincident", 16, 2, 17, 1))
sketch4.addConstraint(Sketcher.Constraint("Coincident", 17, 2, 18, 1))
sketch4.addConstraint(Sketcher.Constraint("Coincident", 18, 2, 19, 2))
sketch4.addConstraint(Sketcher.Constraint("Coincident", 19, 1, 20, 1))
sketch4.addConstraint(Sketcher.Constraint("Coincident", 20, 2, 21, 1))
sketch4.addConstraint(Sketcher.Constraint("Coincident", 21, 2, 22, 1))
sketch4.addConstraint(Sketcher.Constraint("Coincident", 22, 2, 0, 2))
sketch4.addConstraint(Sketcher.Constraint("Horizontal", 1))
sketch4.addConstraint(Sketcher.Constraint("Vertical", 2))
sketch4.addConstraint(Sketcher.Constraint("Horizontal", 4))
sketch4.addConstraint(Sketcher.Constraint("Vertical", 5))
sketch4.addConstraint(Sketcher.Constraint("Horizontal", 6))
sketch4.addConstraint(Sketcher.Constraint("Vertical", 7))
sketch4.addConstraint(Sketcher.Constraint("Horizontal", 8))
sketch4.addConstraint(Sketcher.Constraint("Vertical", 9))
sketch4.addConstraint(Sketcher.Constraint("Horizontal", 10))
sketch4.addConstraint(Sketcher.Constraint("Vertical", 11))
sketch4.addConstraint(Sketcher.Constraint("Horizontal", 12))
sketch4.addConstraint(Sketcher.Constraint("Vertical", 13))
sketch4.addConstraint(Sketcher.Constraint("Horizontal", 14))
sketch4.addConstraint(Sketcher.Constraint("Vertical", 15))
sketch4.addConstraint(Sketcher.Constraint("Horizontal", 17))
sketch4.addConstraint(Sketcher.Constraint("Vertical", 18))
sketch4.addConstraint(Sketcher.Constraint("Vertical", 23))
sketch4.addConstraint(Sketcher.Constraint("Horizontal", 24))
sketch4.addConstraint(Sketcher.Constraint("Vertical", 25))
sketch4.addConstraint(Sketcher.Constraint("Horizontal", 26))
sketch4.addConstraint(Sketcher.Constraint("Coincident", 19, 3, 0, 3))
sketch4.addConstraint(Sketcher.Constraint("Equal", 0, 19))
sketch4.addConstraint(Sketcher.Constraint("PointOnObject", 0, 3, -1))
sketch4.addConstraint(Sketcher.Constraint("PointOnObject", 0, 1, -1))
sketch4.addConstraint(Sketcher.Constraint("Parallel", 3, 16))
sketch4.addConstraint(Sketcher.Constraint("Parallel", 16, 20))
sketch4.addConstraint(Sketcher.Constraint("Perpendicular", 20, 21))
sketch4.addConstraint(Sketcher.Constraint("Perpendicular", 21, 22))
sketch4.addConstraint(Sketcher.Constraint("Vertical", 19, 3, 17, 2))
sketch4.addConstraint(Sketcher.Constraint("Equal", 17, 2))
sketch4.addConstraint(Sketcher.Constraint("Equal", 14, 5))
sketch4.addConstraint(Sketcher.Constraint("Equal", 12, 7))
sketch4.addConstraint(Sketcher.Constraint("Equal", 10, 9))
sketch4.addConstraint(Sketcher.Constraint("Equal", 8, 11))
sketch4.addConstraint(Sketcher.Constraint("Equal", 6, 13))
sketch4.addConstraint(Sketcher.Constraint("Equal", 4, 15))
sketch4.addConstraint(Sketcher.Constraint("Equal", 1, 18))
sketch4.addConstraint(Sketcher.Constraint("Equal", 26, 23))
sketch4.addConstraint(Sketcher.Constraint("Equal", 20, 22))
sketch4.addConstraint(Sketcher.Constraint("Radius", 0, Q("3.5 mm")))
sketch4.addConstraint(Sketcher.Constraint("DistanceX", 12, 2, 12, 1, Q("1 mm")))
sketch4.addConstraint(Sketcher.Constraint("DistanceX", 24, 1, 24, 2, Q("4 mm")))
sketch4.addConstraint(Sketcher.Constraint("Angle", 3, Q("45 deg")))
sketch4.addConstraint(Sketcher.Constraint("Distance", 21, Q("2 mm")))
sketch4.addConstraint(Sketcher.Constraint("DistanceX", 1, 1, 1, 2, Q("2.5 mm")))
sketch4.addConstraint(Sketcher.Constraint("DistanceX", 6, 1, 6, 2, Q("1.5 mm")))
sketch4.addConstraint(Sketcher.Constraint("DistanceX", 8, 1, 8, 2, Q("0.5 mm")))
sketch4.addConstraint(Sketcher.Constraint("DistanceX", 10, 2, 10, 1, Q("9.9 mm")))
sketch4.addConstraint(Sketcher.Constraint("DistanceX", 14, 1, 14, 2, Q("4.4 mm")))
sketch4.addConstraint(Sketcher.Constraint("DistanceX", -1, 1, 0, 3, Q("30 mm")))
sketch4.addConstraint(Sketcher.Constraint("DistanceX", -1, 1, 4, 2, Q("43 mm")))
sketch4.addConstraint(Sketcher.Constraint("DistanceX", -1, 1, 23, 2, Q("40 mm")))
sketch4.addConstraint(Sketcher.Constraint("DistanceY", -1, 1, 23, 2, Q("14 mm")))
sketch4.addConstraint(Sketcher.Constraint("Distance", 20, Q("2.145898 mm")))
sketch4.addConstraint(Sketcher.Constraint("DistanceX", 4, 1, 4, 2, Q("2.37868 mm")))
pad4 = body.newObject("PartDesign::Pad", "Pad003")
pad4.Profile = sketch4
pad4.Length = 300

# Sketch on XY plane
sketch5 = body.newObject("Sketcher::SketchObject", "Sketch004")
sketch5.AttachmentSupport = (doc.getObject("XY_Plane"), [""])
sketch5.MapMode = "FlatFace"
add_polygon(sketch5, [(20, 14), (20, -14), (10, -14), (10, 14)])  # lines 0-3
sketch5.addConstraint(Sketcher.Constraint("Vertical", 0))
sketch5.addConstraint(Sketcher.Constraint("Horizontal", 1))
sketch5.addConstraint(Sketcher.Constraint("Vertical", 2))
sketch5.addConstraint(Sketcher.Constraint("Horizontal", 3))
sketch5.addConstraint(Sketcher.Constraint("DistanceX", 1, 2, 1, 1, Q("10 mm")))
sketch5.addConstraint(Sketcher.Constraint("DistanceY", 0, 2, 0, 1, Q("28 mm")))
sketch5.addConstraint(Sketcher.Constraint("DistanceX", -1, 1, 0, 2, Q("20 mm")))
sketch5.addConstraint(Sketcher.Constraint("DistanceY", 0, 2, -1, 1, Q("14 mm")))
pocket1 = body.newObject("PartDesign::Pocket", "Pocket")
pocket1.Profile = sketch5
pocket1.Type = "ThroughAll"
pocket1.Reversed = True
doc.recompute()

fillet = body.newObject("PartDesign::Fillet", "Fillet")
fillet.Base = (pocket1, edges_at(pocket1, [
    (45, -15, 150),
    (45, 15, 150),
    (-15, 15, 150),
    (-15, -15, 150),
]))
fillet.Radius = 1

# Sketch on XZ plane
sketch6 = body.newObject("Sketcher::SketchObject", "Sketch005")
sketch6.AttachmentSupport = (doc.getObject("XZ_Plane"), [""])
sketch6.MapMode = "FlatFace"
sketch6.AttachmentOffset = App.Placement(V(0, 0, -15), App.Rotation())
sketch6.addGeometry(Part.ArcOfCircle(Part.Circle(V(15, 150, 0), V(0, 0, 1), 4), math.radians(-100.942185), math.radians(0)), False)
sketch6.addGeometry(Part.ArcOfCircle(Part.Circle(V(15, 150, 0), V(0, 0, 1), 4), math.radians(79.057815), math.radians(259.057815)), False)
sketch6.addGeometry(Part.ArcOfCircle(Part.Circle(V(15, 150, 0), V(0, 0, 1), 4), math.radians(0), math.radians(79.057815)), False)
sketch6.addConstraint(Sketcher.Constraint("Tangent", 0, 1, 1, 2))
sketch6.addConstraint(Sketcher.Constraint("Tangent", 1, 1, 2, 2))
sketch6.addConstraint(Sketcher.Constraint("Tangent", 2, 1, 0, 2))
sketch6.addConstraint(Sketcher.Constraint("Horizontal", 1, 3, 2, 1))
sketch6.addConstraint(Sketcher.Constraint("Radius", 0, Q("4 mm")))
sketch6.addConstraint(Sketcher.Constraint("DistanceX", -1, 1, 0, 3, Q("15 mm")))
sketch6.addConstraint(Sketcher.Constraint("DistanceY", -1, 1, 0, 3, Q("150 mm")))
sketch6.addConstraint(Sketcher.Constraint("DistanceX", -1, 1, 0, 1, Q("14.240726 mm")))
sketch6.addConstraint(Sketcher.Constraint("DistanceX", -1, 1, 1, 1, Q("15.759274 mm")))
pocket2 = body.newObject("PartDesign::Pocket", "Pocket001")
pocket2.Profile = sketch6
pocket2.Type = "ThroughAll"
pocket2.Reversed = True

doc.recompute()
